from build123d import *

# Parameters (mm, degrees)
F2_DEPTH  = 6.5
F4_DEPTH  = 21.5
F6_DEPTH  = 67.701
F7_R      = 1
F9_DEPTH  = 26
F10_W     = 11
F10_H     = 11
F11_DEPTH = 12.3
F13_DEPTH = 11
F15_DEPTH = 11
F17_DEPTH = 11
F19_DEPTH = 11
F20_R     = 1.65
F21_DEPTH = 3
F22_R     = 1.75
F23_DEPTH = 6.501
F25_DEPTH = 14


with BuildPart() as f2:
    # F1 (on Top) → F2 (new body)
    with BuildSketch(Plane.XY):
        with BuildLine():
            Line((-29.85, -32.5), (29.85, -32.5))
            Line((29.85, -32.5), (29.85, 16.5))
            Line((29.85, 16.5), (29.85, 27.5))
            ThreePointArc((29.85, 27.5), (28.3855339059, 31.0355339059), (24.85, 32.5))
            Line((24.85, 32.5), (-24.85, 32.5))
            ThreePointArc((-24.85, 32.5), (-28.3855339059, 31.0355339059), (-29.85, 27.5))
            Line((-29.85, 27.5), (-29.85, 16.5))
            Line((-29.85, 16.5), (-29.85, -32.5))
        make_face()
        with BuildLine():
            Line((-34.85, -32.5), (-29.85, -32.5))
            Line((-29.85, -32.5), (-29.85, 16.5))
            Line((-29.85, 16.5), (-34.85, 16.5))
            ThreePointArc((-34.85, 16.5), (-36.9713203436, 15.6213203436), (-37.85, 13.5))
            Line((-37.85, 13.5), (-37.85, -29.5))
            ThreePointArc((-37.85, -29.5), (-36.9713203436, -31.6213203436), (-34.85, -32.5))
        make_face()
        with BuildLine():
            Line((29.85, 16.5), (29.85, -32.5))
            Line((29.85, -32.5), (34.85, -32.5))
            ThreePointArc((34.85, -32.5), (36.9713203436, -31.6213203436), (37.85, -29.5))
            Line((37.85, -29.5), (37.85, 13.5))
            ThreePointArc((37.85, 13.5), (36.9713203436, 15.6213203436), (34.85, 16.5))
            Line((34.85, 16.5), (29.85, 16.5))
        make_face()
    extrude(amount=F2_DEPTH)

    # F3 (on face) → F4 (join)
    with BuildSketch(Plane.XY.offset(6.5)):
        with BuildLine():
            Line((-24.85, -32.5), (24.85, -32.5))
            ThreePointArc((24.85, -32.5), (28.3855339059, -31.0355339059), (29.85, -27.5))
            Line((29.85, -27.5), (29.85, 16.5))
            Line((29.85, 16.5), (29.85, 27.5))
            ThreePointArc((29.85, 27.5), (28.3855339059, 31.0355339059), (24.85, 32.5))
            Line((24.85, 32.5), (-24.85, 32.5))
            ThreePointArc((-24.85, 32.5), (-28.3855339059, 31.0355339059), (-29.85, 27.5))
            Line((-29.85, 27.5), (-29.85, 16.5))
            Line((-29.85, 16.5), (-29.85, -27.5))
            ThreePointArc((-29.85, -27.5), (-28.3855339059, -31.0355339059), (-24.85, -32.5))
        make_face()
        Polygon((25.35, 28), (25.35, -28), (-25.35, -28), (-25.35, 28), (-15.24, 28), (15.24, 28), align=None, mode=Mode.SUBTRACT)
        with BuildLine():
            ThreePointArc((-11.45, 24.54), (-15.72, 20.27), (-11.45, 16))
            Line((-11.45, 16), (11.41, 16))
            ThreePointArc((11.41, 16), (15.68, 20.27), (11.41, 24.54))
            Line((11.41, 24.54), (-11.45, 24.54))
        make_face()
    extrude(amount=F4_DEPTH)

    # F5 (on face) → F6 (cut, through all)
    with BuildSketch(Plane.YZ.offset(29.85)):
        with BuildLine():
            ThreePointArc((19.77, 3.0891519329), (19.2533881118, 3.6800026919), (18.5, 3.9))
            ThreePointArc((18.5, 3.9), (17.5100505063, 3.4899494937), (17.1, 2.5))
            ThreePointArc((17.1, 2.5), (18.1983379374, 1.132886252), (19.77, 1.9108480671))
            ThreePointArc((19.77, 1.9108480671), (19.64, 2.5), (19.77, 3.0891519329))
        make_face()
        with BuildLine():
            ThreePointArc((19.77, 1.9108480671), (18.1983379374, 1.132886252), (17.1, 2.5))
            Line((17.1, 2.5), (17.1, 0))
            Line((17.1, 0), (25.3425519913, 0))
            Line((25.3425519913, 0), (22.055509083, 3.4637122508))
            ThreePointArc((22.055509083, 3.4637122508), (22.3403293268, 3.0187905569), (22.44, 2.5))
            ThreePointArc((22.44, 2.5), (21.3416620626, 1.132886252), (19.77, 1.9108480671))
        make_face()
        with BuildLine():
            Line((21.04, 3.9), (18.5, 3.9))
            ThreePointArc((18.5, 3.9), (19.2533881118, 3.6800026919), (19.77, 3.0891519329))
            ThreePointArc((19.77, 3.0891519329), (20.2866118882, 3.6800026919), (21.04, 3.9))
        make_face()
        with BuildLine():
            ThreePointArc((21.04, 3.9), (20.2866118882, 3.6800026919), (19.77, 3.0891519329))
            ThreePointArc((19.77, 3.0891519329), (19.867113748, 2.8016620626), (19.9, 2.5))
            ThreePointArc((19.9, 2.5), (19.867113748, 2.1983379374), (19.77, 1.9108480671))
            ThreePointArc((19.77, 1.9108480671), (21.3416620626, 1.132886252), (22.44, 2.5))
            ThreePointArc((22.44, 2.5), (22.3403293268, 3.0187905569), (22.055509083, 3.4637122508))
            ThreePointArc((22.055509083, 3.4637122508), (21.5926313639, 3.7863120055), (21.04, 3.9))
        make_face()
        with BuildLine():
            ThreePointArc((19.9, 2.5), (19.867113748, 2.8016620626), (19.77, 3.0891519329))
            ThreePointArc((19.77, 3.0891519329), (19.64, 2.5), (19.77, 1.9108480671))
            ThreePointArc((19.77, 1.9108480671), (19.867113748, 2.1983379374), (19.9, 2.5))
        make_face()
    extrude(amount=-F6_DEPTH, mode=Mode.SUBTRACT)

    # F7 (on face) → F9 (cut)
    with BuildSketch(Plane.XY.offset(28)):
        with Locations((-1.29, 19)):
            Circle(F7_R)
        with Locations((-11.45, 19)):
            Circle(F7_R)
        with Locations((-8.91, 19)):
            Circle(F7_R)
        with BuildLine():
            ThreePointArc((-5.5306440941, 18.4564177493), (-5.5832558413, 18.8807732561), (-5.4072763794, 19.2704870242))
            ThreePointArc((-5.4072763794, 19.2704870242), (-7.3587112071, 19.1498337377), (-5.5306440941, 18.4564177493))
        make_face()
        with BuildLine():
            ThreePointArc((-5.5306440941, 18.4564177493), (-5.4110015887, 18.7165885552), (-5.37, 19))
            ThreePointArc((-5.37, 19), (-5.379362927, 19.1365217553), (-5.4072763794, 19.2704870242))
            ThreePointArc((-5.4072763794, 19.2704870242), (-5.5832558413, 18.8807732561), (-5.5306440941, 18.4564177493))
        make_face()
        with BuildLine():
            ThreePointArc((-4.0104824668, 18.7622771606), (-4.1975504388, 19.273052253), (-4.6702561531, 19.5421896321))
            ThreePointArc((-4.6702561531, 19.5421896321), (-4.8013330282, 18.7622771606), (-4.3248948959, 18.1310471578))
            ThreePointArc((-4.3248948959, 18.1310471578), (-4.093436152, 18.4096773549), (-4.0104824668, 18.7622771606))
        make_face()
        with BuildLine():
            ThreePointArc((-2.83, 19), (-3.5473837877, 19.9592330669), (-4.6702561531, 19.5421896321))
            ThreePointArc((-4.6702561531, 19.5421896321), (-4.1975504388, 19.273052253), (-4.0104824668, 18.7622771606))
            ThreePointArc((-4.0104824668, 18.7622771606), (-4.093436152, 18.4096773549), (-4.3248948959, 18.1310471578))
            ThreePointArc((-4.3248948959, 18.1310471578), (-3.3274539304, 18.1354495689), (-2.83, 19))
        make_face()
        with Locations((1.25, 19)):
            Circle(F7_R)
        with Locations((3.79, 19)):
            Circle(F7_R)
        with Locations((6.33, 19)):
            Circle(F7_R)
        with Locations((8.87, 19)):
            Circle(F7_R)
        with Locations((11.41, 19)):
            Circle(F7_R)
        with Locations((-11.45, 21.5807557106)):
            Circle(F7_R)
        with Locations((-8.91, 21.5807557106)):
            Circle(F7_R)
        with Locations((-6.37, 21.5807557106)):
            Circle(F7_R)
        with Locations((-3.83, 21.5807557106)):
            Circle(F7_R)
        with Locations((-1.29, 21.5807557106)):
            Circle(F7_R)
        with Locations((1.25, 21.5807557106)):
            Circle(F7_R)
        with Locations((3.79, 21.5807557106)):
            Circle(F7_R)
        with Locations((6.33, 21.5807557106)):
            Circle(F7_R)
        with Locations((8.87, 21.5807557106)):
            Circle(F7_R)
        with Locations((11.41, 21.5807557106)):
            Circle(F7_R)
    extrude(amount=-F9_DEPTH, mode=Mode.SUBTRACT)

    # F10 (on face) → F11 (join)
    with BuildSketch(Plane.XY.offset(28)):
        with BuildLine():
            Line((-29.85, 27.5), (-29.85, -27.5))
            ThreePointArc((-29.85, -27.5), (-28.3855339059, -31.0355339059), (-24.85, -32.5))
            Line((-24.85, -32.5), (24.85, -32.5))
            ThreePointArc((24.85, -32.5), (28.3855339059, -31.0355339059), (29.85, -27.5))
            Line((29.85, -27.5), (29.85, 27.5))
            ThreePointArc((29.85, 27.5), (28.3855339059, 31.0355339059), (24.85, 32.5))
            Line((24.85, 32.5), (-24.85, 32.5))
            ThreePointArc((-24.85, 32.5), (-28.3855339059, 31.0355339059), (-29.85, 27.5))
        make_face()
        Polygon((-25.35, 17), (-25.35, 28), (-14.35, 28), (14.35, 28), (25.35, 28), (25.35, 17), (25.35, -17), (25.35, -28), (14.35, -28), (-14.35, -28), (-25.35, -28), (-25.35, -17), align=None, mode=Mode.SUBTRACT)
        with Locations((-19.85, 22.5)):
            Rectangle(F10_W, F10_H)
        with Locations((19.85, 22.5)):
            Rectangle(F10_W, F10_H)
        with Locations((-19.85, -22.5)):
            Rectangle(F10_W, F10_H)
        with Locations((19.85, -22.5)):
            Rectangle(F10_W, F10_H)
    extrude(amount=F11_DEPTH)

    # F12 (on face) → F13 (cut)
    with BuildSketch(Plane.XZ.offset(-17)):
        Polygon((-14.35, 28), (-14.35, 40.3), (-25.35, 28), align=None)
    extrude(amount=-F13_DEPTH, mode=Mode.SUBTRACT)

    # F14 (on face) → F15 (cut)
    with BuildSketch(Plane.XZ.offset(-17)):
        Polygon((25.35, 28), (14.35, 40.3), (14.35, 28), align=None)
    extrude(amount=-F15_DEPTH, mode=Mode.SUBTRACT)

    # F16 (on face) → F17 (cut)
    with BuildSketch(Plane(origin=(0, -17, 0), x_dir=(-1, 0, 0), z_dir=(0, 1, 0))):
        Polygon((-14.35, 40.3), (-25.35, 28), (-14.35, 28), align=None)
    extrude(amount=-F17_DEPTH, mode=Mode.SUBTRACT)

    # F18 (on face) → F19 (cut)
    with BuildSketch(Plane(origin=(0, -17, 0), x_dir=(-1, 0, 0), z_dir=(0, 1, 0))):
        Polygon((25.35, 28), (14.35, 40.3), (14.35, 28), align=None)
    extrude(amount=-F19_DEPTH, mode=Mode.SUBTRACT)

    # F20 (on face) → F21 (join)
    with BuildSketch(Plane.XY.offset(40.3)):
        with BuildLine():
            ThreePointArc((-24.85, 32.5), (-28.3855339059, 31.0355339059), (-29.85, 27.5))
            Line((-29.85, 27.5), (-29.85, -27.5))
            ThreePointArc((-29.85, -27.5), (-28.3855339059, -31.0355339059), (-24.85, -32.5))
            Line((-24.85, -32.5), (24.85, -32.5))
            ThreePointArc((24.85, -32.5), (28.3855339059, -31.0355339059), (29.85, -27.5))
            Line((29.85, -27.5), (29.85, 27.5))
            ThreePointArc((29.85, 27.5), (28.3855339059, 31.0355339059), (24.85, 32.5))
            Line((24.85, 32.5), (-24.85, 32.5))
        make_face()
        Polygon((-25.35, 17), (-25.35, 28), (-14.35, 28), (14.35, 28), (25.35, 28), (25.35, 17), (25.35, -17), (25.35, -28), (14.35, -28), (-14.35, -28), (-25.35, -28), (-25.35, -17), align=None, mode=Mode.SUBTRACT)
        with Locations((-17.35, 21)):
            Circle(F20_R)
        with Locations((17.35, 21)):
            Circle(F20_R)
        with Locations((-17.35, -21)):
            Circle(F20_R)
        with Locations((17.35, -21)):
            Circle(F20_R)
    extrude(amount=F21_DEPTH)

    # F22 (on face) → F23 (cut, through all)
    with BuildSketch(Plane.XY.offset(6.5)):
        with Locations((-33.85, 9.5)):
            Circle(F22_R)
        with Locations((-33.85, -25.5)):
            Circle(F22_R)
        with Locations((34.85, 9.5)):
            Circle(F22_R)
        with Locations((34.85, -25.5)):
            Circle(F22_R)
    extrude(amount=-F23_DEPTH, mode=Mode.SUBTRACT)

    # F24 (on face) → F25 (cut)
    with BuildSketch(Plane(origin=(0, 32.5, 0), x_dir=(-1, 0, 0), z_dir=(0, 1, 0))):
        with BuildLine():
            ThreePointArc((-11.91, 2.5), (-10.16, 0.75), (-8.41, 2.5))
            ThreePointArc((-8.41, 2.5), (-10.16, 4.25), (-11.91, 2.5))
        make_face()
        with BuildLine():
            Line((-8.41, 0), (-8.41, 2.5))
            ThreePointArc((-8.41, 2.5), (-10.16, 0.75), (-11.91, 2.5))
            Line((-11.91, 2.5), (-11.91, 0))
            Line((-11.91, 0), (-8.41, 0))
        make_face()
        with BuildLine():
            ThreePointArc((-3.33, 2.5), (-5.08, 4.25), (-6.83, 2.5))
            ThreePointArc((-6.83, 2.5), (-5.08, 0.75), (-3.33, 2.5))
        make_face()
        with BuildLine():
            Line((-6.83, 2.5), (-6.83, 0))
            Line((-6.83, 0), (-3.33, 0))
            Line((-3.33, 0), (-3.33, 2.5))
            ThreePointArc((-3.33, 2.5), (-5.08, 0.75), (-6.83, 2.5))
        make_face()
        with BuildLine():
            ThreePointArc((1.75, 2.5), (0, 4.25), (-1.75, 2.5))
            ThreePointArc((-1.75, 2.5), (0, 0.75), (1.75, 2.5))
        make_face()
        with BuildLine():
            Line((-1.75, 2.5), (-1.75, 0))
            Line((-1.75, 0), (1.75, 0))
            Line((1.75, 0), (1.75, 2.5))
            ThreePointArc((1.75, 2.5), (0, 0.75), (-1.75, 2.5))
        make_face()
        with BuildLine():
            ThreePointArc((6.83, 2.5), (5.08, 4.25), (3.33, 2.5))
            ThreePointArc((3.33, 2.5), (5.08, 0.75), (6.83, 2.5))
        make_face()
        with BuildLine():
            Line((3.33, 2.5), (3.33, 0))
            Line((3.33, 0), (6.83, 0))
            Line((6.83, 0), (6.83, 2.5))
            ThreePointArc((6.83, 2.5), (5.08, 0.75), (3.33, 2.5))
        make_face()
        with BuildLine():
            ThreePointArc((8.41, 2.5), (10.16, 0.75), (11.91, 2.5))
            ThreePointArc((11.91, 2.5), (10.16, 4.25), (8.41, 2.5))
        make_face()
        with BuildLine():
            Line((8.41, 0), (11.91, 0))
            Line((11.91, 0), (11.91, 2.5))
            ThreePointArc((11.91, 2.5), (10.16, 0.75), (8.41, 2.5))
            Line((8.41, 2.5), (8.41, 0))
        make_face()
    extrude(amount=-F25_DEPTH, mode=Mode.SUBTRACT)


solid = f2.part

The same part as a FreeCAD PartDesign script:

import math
import FreeCAD as App
import Part
import Sketcher
from FreeCAD import Vector
Q = App.Units.Quantity


def add_polygon(sketch, points):
    """Adds a closed chain of lines whose ends are joined by coincident constraints."""
    first, n = sketch.GeometryCount, len(points)
    for a, b in zip(points, points[1:] + points[:1]):
        sketch.addGeometry(Part.LineSegment(App.Vector(*a, 0), App.Vector(*b, 0)), False)
    for i in range(n):
        sketch.addConstraint(Sketcher.Constraint("Coincident", first + i, 2, first + (i + 1) % n, 1))

doc = App.newDocument("Part")
body = doc.addObject("PartDesign::Body", "Body")

# Sketch on XY plane
sketch1 = body.newObject("Sketcher::SketchObject", "Sketch")
sketch1.AttachmentSupport = (doc.getObject("XY_Plane"), [""])
sketch1.MapMode = "FlatFace"
sketch1.addGeometry(Part.LineSegment(Vector(29.9, 16.5, 0), Vector(29.9, 27.5, 0)), False)
sketch1.addGeometry(Part.ArcOfCircle(Part.Circle(Vector(24.9, 27.5, 0), Vector(0, 0, 1), 5), math.radians(0), math.radians(90)), False)
sketch1.addGeometry(Part.LineSegment(Vector(24.9, 32.5, 0), Vector(-24.9, 32.5, 0)), False)
sketch1.addGeometry(Part.ArcOfCircle(Part.Circle(Vector(-24.9, 27.5, 0), Vector(0, 0, 1), 5), math.radians(90), math.radians(180)), False)
sketch1.addGeometry(Part.LineSegment(Vector(-29.9, 27.5, 0), Vector(-29.9, 16.5, 0)), False)
sketch1.addGeometry(Part.LineSegment(Vector(-29.9, 16.5, 0), Vector(-34.9, 16.5, 0)), False)
sketch1.addGeometry(Part.ArcOfCircle(Part.Circle(Vector(-34.9, 13.5, 0), Vector(0, 0, 1), 3), math.radians(90), math.radians(180)), False)
sketch1.addGeometry(Part.LineSegment(Vector(-37.9, 13.5, 0), Vector(-37.9, -29.5, 0)), False)
sketch1.addGeometry(Part.ArcOfCircle(Part.Circle(Vector(-34.9, -29.5, 0), Vector(0, 0, 1), 3), math.radians(180), math.radians(270)), False)
sketch1.addGeometry(Part.LineSegment(Vector(-34.9, -32.5, 0), Vector(34.9, -32.5, 0)), False)
sketch1.addGeometry(Part.ArcOfCircle(Part.Circle(Vector(34.9, -29.5, 0), Vector(0, 0, 1), 3), math.radians(-90), math.radians(0)), False)
sketch1.addGeometry(Part.LineSegment(Vector(37.9, -29.5, 0), Vector(37.9, 13.5, 0)), False)
sketch1.addGeometry(Part.ArcOfCircle(Part.Circle(Vector(34.9, 13.5, 0), Vector(0, 0, 1), 3), math.radians(0), math.radians(90)), False)
sketch1.addGeometry(Part.LineSegment(Vector(34.9, 16.5, 0), Vector(29.9, 16.5, 0)), False)
sketch1.addConstraint(Sketcher.Constraint("Tangent", 0, 2, 1, 1))
sketch1.addConstraint(Sketcher.Constraint("Tangent", 1, 2, 2, 1))
sketch1.addConstraint(Sketcher.Constraint("Tangent", 2, 2, 3, 1))
sketch1.addConstraint(Sketcher.Constraint("Tangent", 3, 2, 4, 1))
sketch1.addConstraint(Sketcher.Constraint("Coincident", 4, 2, 5, 1))
sketch1.addConstraint(Sketcher.Constraint("Tangent", 5, 2, 6, 1))
sketch1.addConstraint(Sketcher.Constraint("Tangent", 6, 2, 7, 1))
sketch1.addConstraint(Sketcher.Constraint("Tangent", 7, 2, 8, 1))
sketch1.addConstraint(Sketcher.Constraint("Tangent", 8, 2, 9, 1))
sketch1.addConstraint(Sketcher.Constraint("Tangent", 9, 2, 10, 1))
sketch1.addConstraint(Sketcher.Constraint("Tangent", 10, 2, 11, 1))
sketch1.addConstraint(Sketcher.Constraint("Tangent", 11, 2, 12, 1))
sketch1.addConstraint(Sketcher.Constraint("Tangent", 12, 2, 13, 1))
sketch1.addConstraint(Sketcher.Constraint("Coincident", 13, 2, 0, 1))
sketch1.addConstraint(Sketcher.Constraint("Vertical", 0))
sketch1.addConstraint(Sketcher.Constraint("Horizontal", 2))
sketch1.addConstraint(Sketcher.Constraint("Vertical", 4))
sketch1.addConstraint(Sketcher.Constraint("Horizontal", 5))
sketch1.addConstraint(Sketcher.Constraint("Vertical", 7))
sketch1.addConstraint(Sketcher.Constraint("Horizontal", 9))
sketch1.addConstraint(Sketcher.Constraint("Vertical", 11))
sketch1.addConstraint(Sketcher.Constraint("Horizontal", 13))
sketch1.addConstraint(Sketcher.Constraint("Equal", 1, 3))
sketch1.addConstraint(Sketcher.Constraint("Equal", 6, 8))
sketch1.addConstraint(Sketcher.Constraint("Equal", 8, 10))
sketch1.addConstraint(Sketcher.Constraint("Equal", 10, 12))
sketch1.addConstraint(Sketcher.Constraint("Symmetric", 6, 3, 12, 3, -2))
sketch1.addConstraint(Sketcher.Constraint("Equal", 5, 13))
sketch1.addConstraint(Sketcher.Constraint("Radius", 1, Q("5 mm")))
sketch1.addConstraint(Sketcher.Constraint("Radius", 6, Q("3 mm")))
sketch1.addConstraint(Sketcher.Constraint("DistanceX", 5, 2, 5, 1, Q("5 mm")))
sketch1.addConstraint(Sketcher.Constraint("DistanceY", 0, 1, 0, 2, Q("11 mm")))
sketch1.addConstraint(Sketcher.Constraint("DistanceY", 7, 2, 7, 1, Q("43 mm")))
sketch1.addConstraint(Sketcher.Constraint("DistanceX", 2, 2, 2, 1, Q("49.7 mm")))
sketch1.addConstraint(Sketcher.Constraint("DistanceY", -1, 1, 1, 3, Q("27.5 mm")))
pad1 = body.newObject("PartDesign::Pad", "Pad")
pad1.Profile = sketch1
pad1.Length = 6.5

# Sketch on XY plane
sketch2 = body.newObject("Sketcher::SketchObject", "Sketch001")
sketch2.AttachmentSupport = (doc.getObject("XY_Plane"), [""])
sketch2.MapMode = "FlatFace"
sketch2.AttachmentOffset = App.Placement(Vector(0, 0, 6.5), App.Rotation())
sketch2.addGeometry(Part.LineSegment(Vector(-24.9, -32.5, 0), Vector(24.9, -32.5, 0)), False)  # 0
sketch2.addGeometry(Part.ArcOfCircle(Part.Circle(Vector(24.9, -27.5, 0), Vector(0, 0, 1), 5), math.radians(-90), math.radians(0)), False)  # 1
sketch2.addGeometry(Part.LineSegment(Vector(29.9, -27.5, 0), Vector(29.9, 27.5, 0)), False)  # 2
sketch2.addGeometry(Part.ArcOfCircle(Part.Circle(Vector(24.9, 27.5, 0), Vector(0, 0, 1), 5), math.radians(0), math.radians(90)), False)  # 3
sketch2.addGeometry(Part.LineSegment(Vector(24.9, 32.5, 0), Vector(-24.9, 32.5, 0)), False)  # 4
sketch2.addGeometry(Part.ArcOfCircle(Part.Circle(Vector(-24.9, 27.5, 0), Vector(0, 0, 1), 5), math.radians(90), math.radians(180)), False)  # 5
sketch2.addGeometry(Part.LineSegment(Vector(-29.9, 27.5, 0), Vector(-29.9, -27.5, 0)), False)  # 6
sketch2.addGeometry(Part.ArcOfCircle(Part.Circle(Vector(-24.9, -27.5, 0), Vector(0, 0, 1), 5), math.radians(180), math.radians(270)), False)  # 7
add_polygon(sketch2, [(-25.4, 28), (25.4, 28), (25.4, -28), (-25.4, -28)])  # lines 8-11
sketch2.addGeometry(Part.ArcOfCircle(Part.Circle(Vector(-11.4, 20.3, 0), Vector(0, 0, 1), 4.3), math.radians(90), math.radians(270)), False)  # 12
sketch2.addGeometry(Part.LineSegment(Vector(-11.4, 16, 0), Vector(11.4, 16, 0)), False)  # 13
sketch2.addGeometry(Part.ArcOfCircle(Part.Circle(Vector(11.4, 20.3, 0), Vector(0, 0, 1), 4.3), math.radians(-90), math.radians(90)), False)  # 14
sketch2.addGeometry(Part.LineSegment(Vector(11.4, 24.5, 0), Vector(-11.4, 24.5, 0)), False)  # 15
sketch2.addConstraint(Sketcher.Constraint("Tangent", 0, 2, 1, 1))
sketch2.addConstraint(Sketcher.Constraint("Tangent", 1, 2, 2, 1))
sketch2.addConstraint(Sketcher.Constraint("Tangent", 2, 2, 3, 1))
sketch2.addConstraint(Sketcher.Constraint("Tangent", 3, 2, 4, 1))
sketch2.addConstraint(Sketcher.Constraint("Tangent", 4, 2, 5, 1))
sketch2.addConstraint(Sketcher.Constraint("Tangent", 5, 2, 6, 1))
sketch2.addConstraint(Sketcher.Constraint("Tangent", 6, 2, 7, 1))
sketch2.addConstraint(Sketcher.Constraint("Tangent", 7, 2, 0, 1))
sketch2.addConstraint(Sketcher.Constraint("Tangent", 12, 2, 13, 1))
sketch2.addConstraint(Sketcher.Constraint("Tangent", 13, 2, 14, 1))
sketch2.addConstraint(Sketcher.Constraint("Tangent", 14, 2, 15, 1))
sketch2.addConstraint(Sketcher.Constraint("Tangent", 15, 2, 12, 1))
sketch2.addConstraint(Sketcher.Constraint("Horizontal", 0))
sketch2.addConstraint(Sketcher.Constraint("Vertical", 2))
sketch2.addConstraint(Sketcher.Constraint("Horizontal", 4))
sketch2.addConstraint(Sketcher.Constraint("Vertical", 6))
sketch2.addConstraint(Sketcher.Constraint("Horizontal", 8))
sketch2.addConstraint(Sketcher.Constraint("Vertical", 9))
sketch2.addConstraint(Sketcher.Constraint("Horizontal", 10))
sketch2.addConstraint(Sketcher.Constraint("Vertical", 11))
sketch2.addConstraint(Sketcher.Constraint("Horizontal", 13))
sketch2.addConstraint(Sketcher.Constraint("Horizontal", 15))
sketch2.addConstraint(Sketcher.Constraint("Equal", 1, 3))
sketch2.addConstraint(Sketcher.Constraint("Equal", 3, 5))
sketch2.addConstraint(Sketcher.Constraint("Equal", 5, 7))
sketch2.addConstraint(Sketcher.Constraint("Symmetric", 1, 3, 5, 3, -1, 1))
sketch2.addConstraint(Sketcher.Constraint("Symmetric", 8, 2, 10, 2, -1, 1))
sketch2.addConstraint(Sketcher.Constraint("Radius", 1, Q("5 mm")))
sketch2.addConstraint(Sketcher.Constraint("DistanceY", 2, 1, 2, 2, Q("55 mm")))
sketch2.addConstraint(Sketcher.Constraint("DistanceY", 9, 2, 9, 1, Q("56 mm")))
sketch2.addConstraint(Sketcher.Constraint("Radius", 12, Q("4.27 mm")))
sketch2.addConstraint(Sketcher.Constraint("DistanceX", 0, 1, 0, 2, Q("49.7 mm")))
sketch2.addConstraint(Sketcher.Constraint("DistanceX", 8, 1, 8, 2, Q("50.7 mm")))
sketch2.addConstraint(Sketcher.Constraint("DistanceY", -1, 1, 12, 2, Q("16 mm")))
sketch2.addConstraint(Sketcher.Constraint("DistanceX", 13, 1, 13, 2, Q("22.86 mm")))
sketch2.addConstraint(Sketcher.Constraint("DistanceX", 5, 3, 12, 3, Q("13.4 mm")))
pad2 = body.newObject("PartDesign::Pad", "Pad001")
pad2.Profile = sketch2
pad2.Length = 21.5

# Sketch on YZ plane
sketch3 = body.newObject("Sketcher::SketchObject", "Sketch002")
sketch3.AttachmentSupport = (doc.getObject("YZ_Plane"), [""])
sketch3.MapMode = "FlatFace"
sketch3.AttachmentOffset = App.Placement(Vector(0, 0, 29.85), App.Rotation())
sketch3.addGeometry(Part.ArcOfCircle(Part.Circle(Vector(18.5, 2.5, 0), Vector(0, 0, 1), 1.4), math.radians(90), math.radians(180)), False)
sketch3.addGeometry(Part.LineSegment(Vector(17.1, 2.5, 0), Vector(17.1, 0, 0)), False)
sketch3.addGeometry(Part.LineSegment(Vector(17.1, 0, 0), Vector(25.3, 0, 0)), False)
sketch3.addGeometry(Part.LineSegment(Vector(25.3, 0, 0), Vector(22.1, 3.5, 0)), False)
sketch3.addGeometry(Part.ArcOfCircle(Part.Circle(Vector(21, 2.5, 0), Vector(0, 0, 1), 1.4), math.radians(44), math.radians(90)), False)
sketch3.addGeometry(Part.LineSegment(Vector(21, 3.9, 0), Vector(18.5, 3.9, 0)), False)
sketch3.addConstraint(Sketcher.Constraint("Tangent", 0, 2, 1, 1))
sketch3.addConstraint(Sketcher.Constraint("Coincident", 1, 2, 2, 1))
sketch3.addConstraint(Sketcher.Constraint("Coincident", 2, 2, 3, 1))
sketch3.addConstraint(Sketcher.Constraint("Tangent", 3, 2, 4, 1))
sketch3.addConstraint(Sketcher.Constraint("Tangent", 4, 2, 5, 1))
sketch3.addConstraint(Sketcher.Constraint("Tangent", 5, 2, 0, 1))
sketch3.addConstraint(Sketcher.Constraint("Vertical", 1))
sketch3.addConstraint(Sketcher.Constraint("Horizontal", 2))
sketch3.addConstraint(Sketcher.Constraint("Horizontal", 5))
sketch3.addConstraint(Sketcher.Constraint("Equal", 0, 4))
sketch3.addConstraint(Sketcher.Constraint("PointOnObject", 1, 2, -1))
sketch3.addConstraint(Sketcher.Constraint("Radius", 0, Q("1.4 mm")))
sketch3.addConstraint(Sketcher.Constraint("DistanceY", 1, 2, 1, 1, Q("2.5 mm")))
sketch3.addConstraint(Sketcher.Constraint("DistanceX", 5, 2, 5, 1, Q("2.54 mm")))
sketch3.addConstraint(Sketcher.Constraint("DistanceX", -1, 1, 0, 3, Q("18.5 mm")))
sketch3.addConstraint(Sketcher.Constraint("DistanceX", 2, 1, 2, 2, Q("8.242552 mm")))
pocket1 = body.newObject("PartDesign::Pocket", "Pocket")
pocket1.Profile = sketch3
pocket1.Type = "ThroughAll"

# Sketch on XY plane
sketch4 = body.newObject("Sketcher::SketchObject", "Sketch003")
sketch4.AttachmentSupport = (doc.getObject("XY_Plane"), [""])
sketch4.MapMode = "FlatFace"
sketch4.AttachmentOffset = App.Placement(Vector(0, 0, 28), App.Rotation())
sketch4.addGeometry(Part.Circle(Vector(-1.29, 19, 0), Vector(0, 0, 1), 1), False)
sketch4.addGeometry(Part.Circle(Vector(-11.45, 19, 0), Vector(0, 0, 1), 1), False)
sketch4.addGeometry(Part.Circle(Vector(-8.91, 19, 0), Vector(0, 0, 1), 1), False)
sketch4.addGeometry(Part.ArcOfCircle(Part.Circle(Vector(-6.37, 19, 0), Vector(0, 0, 1), 1), math.radians(16), math.radians(327)), False)
sketch4.addGeometry(Part.ArcOfCircle(Part.Circle(Vector(-6.37, 19, 0), Vector(0, 0, 1), 1), math.radians(-33), math.radians(0)), False)
sketch4.addGeometry(Part.ArcOfCircle(Part.Circle(Vector(-6.37, 19, 0), Vector(0, 0, 1), 1), math.radians(0), math.radians(15.69)), False)
sketch4.addGeometry(Part.ArcOfCircle(Part.Circle(Vector(-3.83, 19, 0), Vector(0, 0, 1), 1), math.radians(147), math.radians(240)), False)
sketch4.addGeometry(Part.ArcOfCircle(Part.Circle(Vector(-3.83, 19, 0), Vector(0, 0, 1), 1), math.radians(-120), math.radians(0)), False)
sketch4.addGeometry(Part.ArcOfCircle(Part.Circle(Vector(-3.83, 19, 0), Vector(0, 0, 1), 1), math.radians(0), math.radians(147)), False)
sketch4.addGeometry(Part.Circle(Vector(1.25, 19, 0), Vector(0, 0, 1), 1), False)
sketch4.addGeometry(Part.Circle(Vector(3.79, 19, 0), Vector(0, 0, 1), 1), False)
sketch4.addGeometry(Part.Circle(Vector(6.33, 19, 0), Vector(0, 0, 1), 1), False)
sketch4.addGeometry(Part.Circle(Vector(8.87, 19, 0), Vector(0, 0, 1), 1), False)
sketch4.addGeometry(Part.Circle(Vector(11.41, 19, 0), Vector(0, 0, 1), 1), False)
sketch4.addGeometry(Part.Circle(Vector(-11.45, 21.58, 0), Vector(0, 0, 1), 1), False)
sketch4.addGeometry(Part.Circle(Vector(-8.91, 21.58, 0), Vector(0, 0, 1), 1), False)
sketch4.addGeometry(Part.Circle(Vector(-6.37, 21.58, 0), Vector(0, 0, 1), 1), False)
sketch4.addGeometry(Part.Circle(Vector(-3.83, 21.58, 0), Vector(0, 0, 1), 1), False)
sketch4.addGeometry(Part.Circle(Vector(-1.29, 21.58, 0), Vector(0, 0, 1), 1), False)
sketch4.addGeometry(Part.Circle(Vector(1.25, 21.58, 0), Vector(0, 0, 1), 1), False)
sketch4.addGeometry(Part.Circle(Vector(3.79, 21.58, 0), Vector(0, 0, 1), 1), False)
sketch4.addGeometry(Part.Circle(Vector(6.33, 21.58, 0), Vector(0, 0, 1), 1), False)
sketch4.addGeometry(Part.Circle(Vector(8.87, 21.58, 0), Vector(0, 0, 1), 1), False)
sketch4.addGeometry(Part.Circle(Vector(11.41, 21.58, 0), Vector(0, 0, 1), 1), False)
sketch4.addConstraint(Sketcher.Constraint("Tangent", 3, 2, 4, 1))
sketch4.addConstraint(Sketcher.Constraint("Tangent", 4, 2, 5, 1))
sketch4.addConstraint(Sketcher.Constraint("Tangent", 5, 2, 3, 1))
sketch4.addConstraint(Sketcher.Constraint("Tangent", 6, 2, 7, 1))
sketch4.addConstraint(Sketcher.Constraint("Tangent", 7, 2, 8, 1))
sketch4.addConstraint(Sketcher.Constraint("Tangent", 8, 2, 6, 1))
sketch4.addConstraint(Sketcher.Constraint("Equal", 0, 1))
sketch4.addConstraint(Sketcher.Constraint("Equal", 1, 2))
sketch4.addConstraint(Sketcher.Constraint("Equal", 2, 3))
sketch4.addConstraint(Sketcher.Constraint("Equal", 5, 6))
sketch4.addConstraint(Sketcher.Constraint("Equal", 8, 9))
sketch4.addConstraint(Sketcher.Constraint("Equal", 9, 10))
sketch4.addConstraint(Sketcher.Constraint("Equal", 10, 11))
sketch4.addConstraint(Sketcher.Constraint("Equal", 11, 12))
sketch4.addConstraint(Sketcher.Constraint("Equal", 12, 13))
sketch4.addConstraint(Sketcher.Constraint("Equal", 13, 14))
sketch4.addConstraint(Sketcher.Constraint("Equal", 14, 15))
sketch4.addConstraint(Sketcher.Constraint("Equal", 15, 16))
sketch4.addConstraint(Sketcher.Constraint("Equal", 16, 17))
sketch4.addConstraint(Sketcher.Constraint("Equal", 17, 18))
sketch4.addConstraint(Sketcher.Constraint("Equal", 18, 19))
sketch4.addConstraint(Sketcher.Constraint("Equal", 19, 20))
sketch4.addConstraint(Sketcher.Constraint("Equal", 20, 21))
sketch4.addConstraint(Sketcher.Constraint("Equal", 21, 22))
sketch4.addConstraint(Sketcher.Constraint("Equal", 22, 23))
sketch4.addConstraint(Sketcher.Constraint("Horizontal", 0, 3, 1, 3))
sketch4.addConstraint(Sketcher.Constraint("Horizontal", 1, 3, 2, 3))
sketch4.addConstraint(Sketcher.Constraint("Horizontal", 2, 3, 3, 3))
sketch4.addConstraint(Sketcher.Constraint("Horizontal", 5, 3, 6, 3))
sketch4.addConstraint(Sketcher.Constraint("Horizontal", 8, 3, 9, 3))
sketch4.addConstraint(Sketcher.Constraint("Horizontal", 9, 3, 10, 3))
sketch4.addConstraint(Sketcher.Constraint("Horizontal", 10, 3, 11, 3))
sketch4.addConstraint(Sketcher.Constraint("Horizontal", 11, 3, 12, 3))
sketch4.addConstraint(Sketcher.Constraint("Horizontal", 12, 3, 13, 3))
sketch4.addConstraint(Sketcher.Constraint("Horizontal", 14, 3, 15, 3))
sketch4.addConstraint(Sketcher.Constraint("Horizontal", 15, 3, 16, 3))
sketch4.addConstraint(Sketcher.Constraint("Horizontal", 16, 3, 17, 3))
sketch4.addConstraint(Sketcher.Constraint("Horizontal", 17, 3, 18, 3))
sketch4.addConstraint(Sketcher.Constraint("Horizontal", 18, 3, 19, 3))
sketch4.addConstraint(Sketcher.Constraint("Horizontal", 19, 3, 20, 3))
sketch4.addConstraint(Sketcher.Constraint("Horizontal", 20, 3, 21, 3))
sketch4.addConstraint(Sketcher.Constraint("Horizontal", 21, 3, 22, 3))
sketch4.addConstraint(Sketcher.Constraint("Horizontal", 22, 3, 23, 3))
sketch4.addConstraint(Sketcher.Constraint("Horizontal", 13, 3, 4, 2))
sketch4.addConstraint(Sketcher.Constraint("Horizontal", 4, 2, 7, 2))
sketch4.addConstraint(Sketcher.Constraint("Vertical", 1, 3, 14, 3))
sketch4.addConstraint(Sketcher.Constraint("Vertical", 2, 3, 15, 3))
sketch4.addConstraint(Sketcher.Constraint("Vertical", 5, 3, 16, 3))
sketch4.addConstraint(Sketcher.Constraint("Vertical", 8, 3, 17, 3))
sketch4.addConstraint(Sketcher.Constraint("Vertical", 0, 3, 18, 3))
sketch4.addConstraint(Sketcher.Constraint("Vertical", 9, 3, 19, 3))
sketch4.addConstraint(Sketcher.Constraint("Vertical", 10, 3, 20, 3))
sketch4.addConstraint(Sketcher.Constraint("Vertical", 11, 3, 21, 3))
sketch4.addConstraint(Sketcher.Constraint("Vertical", 12, 3, 22, 3))
sketch4.addConstraint(Sketcher.Constraint("Vertical", 13, 3, 23, 3))
sketch4.addConstraint(Sketcher.Constraint("Diameter", 0, Q("2 mm")))
sketch4.addConstraint(Sketcher.Constraint("DistanceY", -1, 1, 0, 3, Q("19 mm")))
sketch4.addConstraint(Sketcher.Constraint("DistanceX", 6, 3, 12, 3, Q("12.7 mm")))
sketch4.addConstraint(Sketcher.Constraint("DistanceX", 0, 3, 13, 3, Q("12.7 mm")))
sketch4.addConstraint(Sketcher.Constraint("DistanceX", 0, 3, -1, 1, Q("1.29 mm")))
sketch4.addConstraint(Sketcher.Constraint("DistanceX", 1, 3, -1, 1, Q("11.45 mm")))
sketch4.addConstraint(Sketcher.Constraint("DistanceX", 2, 3, -1, 1, Q("8.91 mm")))
sketch4.addConstraint(Sketcher.Constraint("DistanceX", 3, 3, -1, 1, Q("6.37 mm")))
sketch4.addConstraint(Sketcher.Constraint("DistanceX", 6, 3, -1, 1, Q("3.83 mm")))
sketch4.addConstraint(Sketcher.Constraint("DistanceX", -1, 1, 9, 3, Q("1.25 mm")))
sketch4.addConstraint(Sketcher.Constraint("DistanceX", -1, 1, 10, 3, Q("3.79 mm")))
sketch4.addConstraint(Sketcher.Constraint("DistanceX", -1, 1, 11, 3, Q("6.33 mm")))
sketch4.addConstraint(Sketcher.Constraint("DistanceY", -1, 1, 8, 2, Q("19.54219 mm")))
sketch4.addConstraint(Sketcher.Constraint("DistanceY", 3, 2, 5, 2, Q("0.814069 mm")))
sketch4.addConstraint(Sketcher.Constraint("DistanceX", 3, 2, 6, 2, Q("1.205749 mm")))
sketch4.addConstraint(Sketcher.Constraint("DistanceY", 6, 2, 3, 2, Q("0.325371 mm")))
sketch4.addConstraint(Sketcher.Constraint("DistanceY", -1, 1, 14, 3, Q("21.580756 mm")))
pocket2 = body.newObject("PartDesign::Pocket", "Pocket001")
pocket2.Profile = sketch4
pocket2.Length = 26

# Sketch on XY plane
sketch5 = body.newObject("Sketcher::SketchObject", "Sketch004")
sketch5.AttachmentSupport = (doc.getObject("XY_Plane"), [""])
sketch5.MapMode = "FlatFace"
sketch5.AttachmentOffset = App.Placement(Vector(0, 0, 28), App.Rotation())
sketch5.addGeometry(Part.LineSegment(Vector(-30, 28, 0), Vector(-30, -28, 0)), False)  # 0
sketch5.addGeometry(Part.ArcOfCircle(Part.Circle(Vector(-25, -28, 0), Vector(0, 0, 1), 5), math.radians(180), math.radians(270)), False)  # 1
sketch5.addGeometry(Part.LineSegment(Vector(-25, -32, 0), Vector(25, -32, 0)), False)  # 2
sketch5.addGeometry(Part.ArcOfCircle(Part.Circle(Vector(25, -28, 0), Vector(0, 0, 1), 5), math.radians(-90), math.radians(0)), False)  # 3
sketch5.addGeometry(Part.LineSegment(Vector(30, -28, 0), Vector(30, 28, 0)), False)  # 4
sketch5.addGeometry(Part.ArcOfCircle(Part.Circle(Vector(25, 28, 0), Vector(0, 0, 1), 5), math.radians(0), math.radians(90)), False)  # 5
sketch5.addGeometry(Part.LineSegment(Vector(25, 32, 0), Vector(-25, 32, 0)), False)  # 6
sketch5.addGeometry(Part.ArcOfCircle(Part.Circle(Vector(-25, 28, 0), Vector(0, 0, 1), 5), math.radians(90), math.radians(180)), False)  # 7
add_polygon(sketch5, [(-25, -17), (-25, 17), (-14, 17), (-14, 28), (14, 28), (14, 17), (25, 17), (25, -17), (14, -17), (14, -28), (-14, -28), (-14, -17)])  # lines 8-19
sketch5.addConstraint(Sketcher.Constraint("Tangent", 0, 2, 1, 1))
sketch5.addConstraint(Sketcher.Constraint("Tangent", 1, 2, 2, 1))
sketch5.addConstraint(Sketcher.Constraint("Tangent", 2, 2, 3, 1))
sketch5.addConstraint(Sketcher.Constraint("Tangent", 3, 2, 4, 1))
sketch5.addConstraint(Sketcher.Constraint("Tangent", 4, 2, 5, 1))
sketch5.addConstraint(Sketcher.Constraint("Tangent", 5, 2, 6, 1))
sketch5.addConstraint(Sketcher.Constraint("Tangent", 6, 2, 7, 1))
sketch5.addConstraint(Sketcher.Constraint("Tangent", 7, 2, 0, 1))
sketch5.addConstraint(Sketcher.Constraint("Vertical", 0))
sketch5.addConstraint(Sketcher.Constraint("Horizontal", 2))
sketch5.addConstraint(Sketcher.Constraint("Vertical", 4))
sketch5.addConstraint(Sketcher.Constraint("Horizontal", 6))
sketch5.addConstraint(Sketcher.Constraint("Vertical", 8))
sketch5.addConstraint(Sketcher.Constraint("Horizontal", 9))
sketch5.addConstraint(Sketcher.Constraint("Vertical", 10))
sketch5.addConstraint(Sketcher.Constraint("Horizontal", 11))
sketch5.addConstraint(Sketcher.Constraint("Vertical", 12))
sketch5.addConstraint(Sketcher.Constraint("Horizontal", 13))
sketch5.addConstraint(Sketcher.Constraint("Vertical", 14))
sketch5.addConstraint(Sketcher.Constraint("Horizontal", 15))
sketch5.addConstraint(Sketcher.Constraint("Vertical", 16))
sketch5.addConstraint(Sketcher.Constraint("Horizontal", 17))
sketch5.addConstraint(Sketcher.Constraint("Vertical", 18))
sketch5.addConstraint(Sketcher.Constraint("Horizontal", 19))
sketch5.addConstraint(Sketcher.Constraint("Equal", 1, 3))
sketch5.addConstraint(Sketcher.Constraint("Equal", 3, 5))
sketch5.addConstraint(Sketcher.Constraint("Equal", 5, 7))
sketch5.addConstraint(Sketcher.Constraint("Symmetric", 1, 3, 5, 3, -1, 1))
sketch5.addConstraint(Sketcher.Constraint("Symmetric", 8, 2, 14, 2, -1, 1))
sketch5.addConstraint(Sketcher.Constraint("Symmetric", 10, 2, 16, 2, -1, 1))
sketch5.addConstraint(Sketcher.Constraint("Symmetric", 12, 2, 18, 2, -1, 1))
sketch5.addConstraint(Sketcher.Constraint("Symmetric", 9, 2, 12, 2, -2))
sketch5.addConstraint(Sketcher.Constraint("Equal", 19, 10))
sketch5.addConstraint(Sketcher.Constraint("Radius", 1, Q("5 mm")))
sketch5.addConstraint(Sketcher.Constraint("DistanceX", 9, 1, 9, 2, Q("11 mm")))
sketch5.addConstraint(Sketcher.Constraint("DistanceY", 0, 2, 0, 1, Q("55 mm")))
sketch5.addConstraint(Sketcher.Constraint("DistanceY", 8, 1, 8, 2, Q("34 mm")))
sketch5.addConstraint(Sketcher.Constraint("DistanceX", 2, 1, 2, 2, Q("49.7 mm")))
sketch5.addConstraint(Sketcher.Constraint("DistanceX", 11, 1, 11, 2, Q("28.7 mm")))
pad3 = body.newObject("PartDesign::Pad", "Pad002")
pad3.Profile = sketch5
pad3.Length = 12.3

# Sketch on XZ plane
sketch6 = body.newObject("Sketcher::SketchObject", "Sketch005")
sketch6.AttachmentSupport = (doc.getObject("XZ_Plane"), [""])
sketch6.MapMode = "FlatFace"
sketch6.AttachmentOffset = App.Placement(Vector(0, 0, -17), App.Rotation())
add_polygon(sketch6, [(-14, 28), (-14, 40), (-25, 28)])  # lines 0-2
sketch6.addConstraint(Sketcher.Constraint("Vertical", 0))
sketch6.addConstraint(Sketcher.Constraint("Horizontal", 2))
sketch6.addConstraint(Sketcher.Constraint("DistanceX", 2, 1, 2, 2, Q("11 mm")))
sketch6.addConstraint(Sketcher.Constraint("DistanceY", 0, 1, 0, 2, Q("12.3 mm")))
sketch6.addConstraint(Sketcher.Constraint("DistanceY", -1, 1, 1, 2, Q("28 mm")))
sketch6.addConstraint(Sketcher.Constraint("DistanceX", 0, 2, -1, 1, Q("14.35 mm")))
pocket3 = body.newObject("PartDesign::Pocket", "Pocket002")
pocket3.Profile = sketch6
pocket3.Length = 11

# Sketch on XZ plane
sketch7 = body.newObject("Sketcher::SketchObject", "Sketch006")
sketch7.AttachmentSupport = (doc.getObject("XZ_Plane"), [""])
sketch7.MapMode = "FlatFace"
sketch7.AttachmentOffset = App.Placement(Vector(0, 0, -17), App.Rotation())
add_polygon(sketch7, [(25, 28), (14, 40), (14, 28)])  # lines 0-2
sketch7.addConstraint(Sketcher.Constraint("Vertical", 1))
sketch7.addConstraint(Sketcher.Constraint("Horizontal", 2))
sketch7.addConstraint(Sketcher.Constraint("DistanceX", 2, 1, 2, 2, Q("11 mm")))
sketch7.addConstraint(Sketcher.Constraint("DistanceY", 1, 2, 1, 1, Q("12.3 mm")))
sketch7.addConstraint(Sketcher.Constraint("DistanceY", -1, 1, 1, 2, Q("28 mm")))
sketch7.addConstraint(Sketcher.Constraint("DistanceX", -1, 1, 0, 2, Q("14.35 mm")))
pocket4 = body.newObject("PartDesign::Pocket", "Pocket003")
pocket4.Profile = sketch7
pocket4.Length = 11

# Sketch on XZ plane
sketch8 = body.newObject("Sketcher::SketchObject", "Sketch007")
sketch8.AttachmentSupport = (doc.getObject("XZ_Plane"), [""])
sketch8.MapMode = "FlatFace"
sketch8.AttachmentOffset = App.Placement(Vector(0, 0, 17), App.Rotation())
add_polygon(sketch8, [(14, 40), (25, 28), (14, 28)])  # lines 0-2
sketch8.addConstraint(Sketcher.Constraint("Horizontal", 1))
sketch8.addConstraint(Sketcher.Constraint("Vertical", 2))
sketch8.addConstraint(Sketcher.Constraint("DistanceX", 1, 2, 1, 1, Q("11 mm")))
sketch8.addConstraint(Sketcher.Constraint("DistanceY", 2, 1, 2, 2, Q("12.3 mm")))
sketch8.addConstraint(Sketcher.Constraint("DistanceY", -1, 1, 0, 2, Q("28 mm")))
sketch8.addConstraint(Sketcher.Constraint("DistanceX", -1, 1, 0, 2, Q("25.35 mm")))
pocket5 = body.newObject("PartDesign::Pocket", "Pocket004")
pocket5.Profile = sketch8
pocket5.Length = 11
pocket5.Reversed = True

# Sketch on XZ plane
sketch9 = body.newObject("Sketcher::SketchObject", "Sketch008")
sketch9.AttachmentSupport = (doc.getObject("XZ_Plane"), [""])
sketch9.MapMode = "FlatFace"
sketch9.AttachmentOffset = App.Placement(Vector(0, 0, 17), App.Rotation())
add_polygon(sketch9, [(-25, 28), (-14, 40), (-14, 28)])  # lines 0-2
sketch9.addConstraint(Sketcher.Constraint("Vertical", 1))
sketch9.addConstraint(Sketcher.Constraint("Horizontal", 2))
sketch9.addConstraint(Sketcher.Constraint("DistanceX", 2, 2, 2, 1, Q("11 mm")))
sketch9.addConstraint(Sketcher.Constraint("DistanceY", 1, 2, 1, 1, Q("12.3 mm")))
sketch9.addConstraint(Sketcher.Constraint("DistanceY", -1, 1, 1, 2, Q("28 mm")))
sketch9.addConstraint(Sketcher.Constraint("DistanceX", 0, 2, -1, 1, Q("14.35 mm")))
pocket6 = body.newObject("PartDesign::Pocket", "Pocket005")
pocket6.Profile = sketch9
pocket6.Length = 11
pocket6.Reversed = True

# Sketch on XY plane
sketch10 = body.newObject("Sketcher::SketchObject", "Sketch009")
sketch10.AttachmentSupport = (doc.getObject("XY_Plane"), [""])
sketch10.MapMode = "FlatFace"
sketch10.AttachmentOffset = App.Placement(Vector(0, 0, 40.3), App.Rotation())
sketch10.addGeometry(Part.ArcOfCircle(Part.Circle(Vector(-24.9, 27.5, 0), Vector(0, 0, 1), 5), math.radians(90), math.radians(180)), False)  # 0
sketch10.addGeometry(Part.LineSegment(Vector(-29.9, 27.5, 0), Vector(-29.9, -27.5, 0)), False)  # 1
sketch10.addGeometry(Part.ArcOfCircle(Part.Circle(Vector(-24.9, -27.5, 0), Vector(0, 0, 1), 5), math.radians(180), math.radians(270)), False)  # 2
sketch10.addGeometry(Part.LineSegment(Vector(-24.9, -32.5, 0), Vector(24.9, -32.5, 0)), False)  # 3
sketch10.addGeometry(Part.ArcOfCircle(Part.Circle(Vector(24.9, -27.5, 0), Vector(0, 0, 1), 5), math.radians(-90), math.radians(0)), False)  # 4
sketch10.addGeometry(Part.LineSegment(Vector(29.9, -27.5, 0), Vector(29.9, 27.5, 0)), False)  # 5
sketch10.addGeometry(Part.ArcOfCircle(Part.Circle(Vector(24.9, 27.5, 0), Vector(0, 0, 1), 5), math.radians(0), math.radians(90)), False)  # 6
sketch10.addGeometry(Part.LineSegment(Vector(24.9, 32.5, 0), Vector(-24.9, 32.5, 0)), False)  # 7
add_polygon(sketch10, [(-25.4, -28), (-25.4, 28), (25.4, 28), (25.4, -28)])  # lines 8-11
sketch10.addGeometry(Part.Circle(Vector(-17.4, 21, 0), Vector(0, 0, 1), 1.6), False)  # 12
sketch10.addGeometry(Part.Circle(Vector(17.4, 21, 0), Vector(0, 0, 1), 1.6), False)  # 13
sketch10.addGeometry(Part.Circle(Vector(-17.4, -21, 0), Vector(0, 0, 1), 1.6), False)  # 14
sketch10.addGeometry(Part.Circle(Vector(17.4, -21, 0), Vector(0, 0, 1), 1.6), False)  # 15
sketch10.addConstraint(Sketcher.Constraint("Tangent", 0, 2, 1, 1))
sketch10.addConstraint(Sketcher.Constraint("Tangent", 1, 2, 2, 1))
sketch10.addConstraint(Sketcher.Constraint("Tangent", 2, 2, 3, 1))
sketch10.addConstraint(Sketcher.Constraint("Tangent", 3, 2, 4, 1))
sketch10.addConstraint(Sketcher.Constraint("Tangent", 4, 2, 5, 1))
sketch10.addConstraint(Sketcher.Constraint("Tangent", 5, 2, 6, 1))
sketch10.addConstraint(Sketcher.Constraint("Tangent", 6, 2, 7, 1))
sketch10.addConstraint(Sketcher.Constraint("Tangent", 7, 2, 0, 1))
sketch10.addConstraint(Sketcher.Constraint("Vertical", 1))
sketch10.addConstraint(Sketcher.Constraint("Horizontal", 3))
sketch10.addConstraint(Sketcher.Constraint("Vertical", 5))
sketch10.addConstraint(Sketcher.Constraint("Horizontal", 7))
sketch10.addConstraint(Sketcher.Constraint("Vertical", 8))
sketch10.addConstraint(Sketcher.Constraint("Horizontal", 9))
sketch10.addConstraint(Sketcher.Constraint("Vertical", 10))
sketch10.addConstraint(Sketcher.Constraint("Horizontal", 11))
sketch10.addConstraint(Sketcher.Constraint("Equal", 0, 2))
sketch10.addConstraint(Sketcher.Constraint("Equal", 2, 4))
sketch10.addConstraint(Sketcher.Constraint("Equal", 4, 6))
sketch10.addConstraint(Sketcher.Constraint("Equal", 12, 13))
sketch10.addConstraint(Sketcher.Constraint("Equal", 13, 14))
sketch10.addConstraint(Sketcher.Constraint("Equal", 14, 15))
sketch10.addConstraint(Sketcher.Constraint("Symmetric", 0, 3, 4, 3, -1, 1))
sketch10.addConstraint(Sketcher.Constraint("Symmetric", 13, 3, 14, 3, -1, 1))
sketch10.addConstraint(Sketcher.Constraint("Symmetric", 12, 3, 15, 3, -1, 1))
sketch10.addConstraint(Sketcher.Constraint("Symmetric", 8, 2, 10, 2, -1, 1))
sketch10.addConstraint(Sketcher.Constraint("Symmetric", 12, 3, 13, 3, -2))
sketch10.addConstraint(Sketcher.Constraint("Radius", 0, Q("5 mm")))
sketch10.addConstraint(Sketcher.Constraint("Diameter", 12, Q("3.3 mm")))
sketch10.addConstraint(Sketcher.Constraint("DistanceY", 1, 2, 1, 1, Q("55 mm")))
sketch10.addConstraint(Sketcher.Constraint("DistanceY", 8, 1, 8, 2, Q("56 mm")))
sketch10.addConstraint(Sketcher.Constraint("DistanceX", 3, 1, 3, 2, Q("49.7 mm")))
sketch10.addConstraint(Sketcher.Constraint("DistanceX", 9, 1, 9, 2, Q("50.7 mm")))
sketch10.addConstraint(Sketcher.Constraint("DistanceY", -1, 1, 12, 3, Q("21 mm")))
sketch10.addConstraint(Sketcher.Constraint("DistanceX", 8, 2, 12, 3, Q("8 mm")))
pad4 = body.newObject("PartDesign::Pad", "Pad003")
pad4.Profile = sketch10
pad4.Length = 3

# Sketch on XY plane
sketch11 = body.newObject("Sketcher::SketchObject", "Sketch010")
sketch11.AttachmentSupport = (doc.getObject("XY_Plane"), [""])
sketch11.MapMode = "FlatFace"
sketch11.AttachmentOffset = App.Placement(Vector(0, 0, 6.5), App.Rotation())
sketch11.addGeometry(Part.Circle(Vector(-33.9, 9.5, 0), Vector(0, 0, 1), 1.8), False)
sketch11.addGeometry(Part.Circle(Vector(-33.9, -25.5, 0), Vector(0, 0, 1), 1.8), False)
sketch11.addGeometry(Part.Circle(Vector(34.9, 9.5, 0), Vector(0, 0, 1), 1.8), False)
sketch11.addGeometry(Part.Circle(Vector(34.9, -25.5, 0), Vector(0, 0, 1), 1.8), False)
sketch11.addConstraint(Sketcher.Constraint("Equal", 0, 1))
sketch11.addConstraint(Sketcher.Constraint("Equal", 1, 2))
sketch11.addConstraint(Sketcher.Constraint("Equal", 2, 3))
sketch11.addConstraint(Sketcher.Constraint("Horizontal", 0, 3, 2, 3))
sketch11.addConstraint(Sketcher.Constraint("Horizontal", 1, 3, 3, 3))
sketch11.addConstraint(Sketcher.Constraint("Vertical", 0, 3, 1, 3))
sketch11.addConstraint(Sketcher.Constraint("Vertical", 2, 3, 3, 3))
sketch11.addConstraint(Sketcher.Constraint("Diameter", 0, Q("3.5 mm")))
sketch11.addConstraint(Sketcher.Constraint("DistanceY", 1, 3, 0, 3, Q("35 mm")))
sketch11.addConstraint(Sketcher.Constraint("DistanceY", -1, 1, 0, 3, Q("9.5 mm")))
sketch11.addConstraint(Sketcher.Constraint("DistanceX", 0, 3, 2, 3, Q("68.7 mm")))
sketch11.addConstraint(Sketcher.Constraint("DistanceX", 0, 3, -1, 1, Q("33.85 mm")))
pocket7 = body.newObject("PartDesign::Pocket", "Pocket006")
pocket7.Profile = sketch11
pocket7.Type = "ThroughAll"

# Sketch on XZ plane
sketch12 = body.newObject("Sketcher::SketchObject", "Sketch011")
sketch12.AttachmentSupport = (doc.getObject("XZ_Plane"), [""])
sketch12.MapMode = "FlatFace"
sketch12.AttachmentOffset = App.Placement(Vector(0, 0, -32.5), App.Rotation())
sketch12.addGeometry(Part.ArcOfCircle(Part.Circle(Vector(10.2, 2.5, 0), Vector(0, 0, 1), 1.8), math.radians(0), math.radians(180)), False)
sketch12.addGeometry(Part.LineSegment(Vector(11.9, 2.5, 0), Vector(11.9, 0, 0)), False)
sketch12.addGeometry(Part.LineSegment(Vector(11.9, 0, 0), Vector(8.4, 0, 0)), False)
sketch12.addGeometry(Part.LineSegment(Vector(8.4, 0, 0), Vector(8.4, 2.5, 0)), False)
sketch12.addGeometry(Part.ArcOfCircle(Part.Circle(Vector(5.1, 2.5, 0), Vector(0, 0, 1), 1.8), math.radians(0), math.radians(180)), False)
sketch12.addGeometry(Part.LineSegment(Vector(6.8, 2.5, 0), Vector(6.8, 0, 0)), False)
sketch12.addGeometry(Part.LineSegment(Vector(6.8, 0, 0), Vector(3.3, 0, 0)), False)
sketch12.addGeometry(Part.LineSegment(Vector(3.3, 0, 0), Vector(3.3, 2.5, 0)), False)
sketch12.addGeometry(Part.ArcOfCircle(Part.Circle(Vector(0, 2.5, 0), Vector(0, 0, 1), 1.8), math.radians(0), math.radians(180)), False)
sketch12.addGeometry(Part.LineSegment(Vector(1.8, 2.5, 0), Vector(1.8, 0, 0)), False)
sketch12.addGeometry(Part.LineSegment(Vector(1.8, 0, 0), Vector(-1.8, 0, 0)), False)
sketch12.addGeometry(Part.LineSegment(Vector(-1.8, 0, 0), Vector(-1.8, 2.5, 0)), False)
sketch12.addGeometry(Part.ArcOfCircle(Part.Circle(Vector(-5.1, 2.5, 0), Vector(0, 0, 1), 1.8), math.radians(0), math.radians(180)), False)
sketch12.addGeometry(Part.LineSegment(Vector(-3.3, 2.5, 0), Vector(-3.3, 0, 0)), False)
sketch12.addGeometry(Part.LineSegment(Vector(-3.3, 0, 0), Vector(-6.8, 0, 0)), False)
sketch12.addGeometry(Part.LineSegment(Vector(-6.8, 0, 0), Vector(-6.8, 2.5, 0)), False)
sketch12.addGeometry(Part.ArcOfCircle(Part.Circle(Vector(-10.2, 2.5, 0), Vector(0, 0, 1), 1.8), math.radians(0), math.radians(180)), False)
sketch12.addGeometry(Part.LineSegment(Vector(-8.4, 2.5, 0), Vector(-8.4, 0, 0)), False)
sketch12.addGeometry(Part.LineSegment(Vector(-8.4, 0, 0), Vector(-11.9, 0, 0)), False)
sketch12.addGeometry(Part.LineSegment(Vector(-11.9, 0, 0), Vector(-11.9, 2.5, 0)), False)
sketch12.addConstraint(Sketcher.Constraint("Tangent", 0, 1, 1, 1))
sketch12.addConstraint(Sketcher.Constraint("Coincident", 1, 2, 2, 1))
sketch12.addConstraint(Sketcher.Constraint("Coincident", 2, 2, 3, 1))
sketch12.addConstraint(Sketcher.Constraint("Tangent", 3, 2, 0, 2))
sketch12.addConstraint(Sketcher.Constraint("Tangent", 4, 1, 5, 1))
sketch12.addConstraint(Sketcher.Constraint("Coincident", 5, 2, 6, 1))
sketch12.addConstraint(Sketcher.Constraint("Coincident", 6, 2, 7, 1))
sketch12.addConstraint(Sketcher.Constraint("Tangent", 7, 2, 4, 2))
sketch12.addConstraint(Sketcher.Constraint("Tangent", 8, 1, 9, 1))
sketch12.addConstraint(Sketcher.Constraint("Coincident", 9, 2, 10, 1))
sketch12.addConstraint(Sketcher.Constraint("Coincident", 10, 2, 11, 1))
sketch12.addConstraint(Sketcher.Constraint("Tangent", 11, 2, 8, 2))
sketch12.addConstraint(Sketcher.Constraint("Tangent", 12, 1, 13, 1))
sketch12.addConstraint(Sketcher.Constraint("Coincident", 13, 2, 14, 1))
sketch12.addConstraint(Sketcher.Constraint("Coincident", 14, 2, 15, 1))
sketch12.addConstraint(Sketcher.Constraint("Tangent", 15, 2, 12, 2))
sketch12.addConstraint(Sketcher.Constraint("Tangent", 16, 1, 17, 1))
sketch12.addConstraint(Sketcher.Constraint("Coincident", 17, 2, 18, 1))
sketch12.addConstraint(Sketcher.Constraint("Coincident", 18, 2, 19, 1))
sketch12.addConstraint(Sketcher.Constraint("Tangent", 19, 2, 16, 2))
sketch12.addConstraint(Sketcher.Constraint("Vertical", 1))
sketch12.addConstraint(Sketcher.Constraint("Horizontal", 2))
sketch12.addConstraint(Sketcher.Constraint("Vertical", 3))
sketch12.addConstraint(Sketcher.Constraint("Vertical", 5))
sketch12.addConstraint(Sketcher.Constraint("Horizontal", 6))
sketch12.addConstraint(Sketcher.Constraint("Vertical", 7))
sketch12.addConstraint(Sketcher.Constraint("Vertical", 9))
sketch12.addConstraint(Sketcher.Constraint("Horizontal", 10))
sketch12.addConstraint(Sketcher.Constraint("Vertical", 11))
sketch12.addConstraint(Sketcher.Constraint("Vertical", 13))
sketch12.addConstraint(Sketcher.Constraint("Horizontal", 14))
sketch12.addConstraint(Sketcher.Constraint("Vertical", 15))
sketch12.addConstraint(Sketcher.Constraint("Vertical", 17))
sketch12.addConstraint(Sketcher.Constraint("Horizontal", 18))
sketch12.addConstraint(Sketcher.Constraint("Vertical", 19))
sketch12.addConstraint(Sketcher.Constraint("Equal", 0, 4))
sketch12.addConstraint(Sketcher.Constraint("Equal", 4, 8))
sketch12.addConstraint(Sketcher.Constraint("Equal", 8, 12))
sketch12.addConstraint(Sketcher.Constraint("Equal", 12, 16))
sketch12.addConstraint(Sketcher.Constraint("Symmetric", 9, 2, 10, 2, -1, 1))
sketch12.addConstraint(Sketcher.Constraint("Symmetric", 6, 2, 13, 2, -1, 1))
sketch12.addConstraint(Sketcher.Constraint("Symmetric", 2, 2, 17, 2, -1, 1))
sketch12.addConstraint(Sketcher.Constraint("PointOnObject", 1, 2, -1))
sketch12.addConstraint(Sketcher.Constraint("PointOnObject", 5, 2, -1))
sketch12.addConstraint(Sketcher.Constraint("Horizontal", 0, 3, 4, 3))
sketch12.addConstraint(Sketcher.Constraint("Horizontal", 4, 3, 8, 3))
sketch12.addConstraint(Sketcher.Constraint("Horizontal", 8, 3, 12, 3))
sketch12.addConstraint(Sketcher.Constraint("Horizontal", 12, 3, 16, 3))
sketch12.addConstraint(Sketcher.Constraint("Radius", 0, Q("1.75 mm")))
sketch12.addConstraint(Sketcher.Constraint("DistanceY", 1, 2, 1, 1, Q("2.5 mm")))
sketch12.addConstraint(Sketcher.Constraint("DistanceX", -1, 1, 0, 3, Q("10.16 mm")))
sketch12.addConstraint(Sketcher.Constraint("DistanceX", -1, 1, 4, 3, Q("5.08 mm")))
pocket8 = body.newObject("PartDesign::Pocket", "Pocket007")
pocket8.Profile = sketch12
pocket8.Length = 14
pocket8.Reversed = True

doc.recompute()
